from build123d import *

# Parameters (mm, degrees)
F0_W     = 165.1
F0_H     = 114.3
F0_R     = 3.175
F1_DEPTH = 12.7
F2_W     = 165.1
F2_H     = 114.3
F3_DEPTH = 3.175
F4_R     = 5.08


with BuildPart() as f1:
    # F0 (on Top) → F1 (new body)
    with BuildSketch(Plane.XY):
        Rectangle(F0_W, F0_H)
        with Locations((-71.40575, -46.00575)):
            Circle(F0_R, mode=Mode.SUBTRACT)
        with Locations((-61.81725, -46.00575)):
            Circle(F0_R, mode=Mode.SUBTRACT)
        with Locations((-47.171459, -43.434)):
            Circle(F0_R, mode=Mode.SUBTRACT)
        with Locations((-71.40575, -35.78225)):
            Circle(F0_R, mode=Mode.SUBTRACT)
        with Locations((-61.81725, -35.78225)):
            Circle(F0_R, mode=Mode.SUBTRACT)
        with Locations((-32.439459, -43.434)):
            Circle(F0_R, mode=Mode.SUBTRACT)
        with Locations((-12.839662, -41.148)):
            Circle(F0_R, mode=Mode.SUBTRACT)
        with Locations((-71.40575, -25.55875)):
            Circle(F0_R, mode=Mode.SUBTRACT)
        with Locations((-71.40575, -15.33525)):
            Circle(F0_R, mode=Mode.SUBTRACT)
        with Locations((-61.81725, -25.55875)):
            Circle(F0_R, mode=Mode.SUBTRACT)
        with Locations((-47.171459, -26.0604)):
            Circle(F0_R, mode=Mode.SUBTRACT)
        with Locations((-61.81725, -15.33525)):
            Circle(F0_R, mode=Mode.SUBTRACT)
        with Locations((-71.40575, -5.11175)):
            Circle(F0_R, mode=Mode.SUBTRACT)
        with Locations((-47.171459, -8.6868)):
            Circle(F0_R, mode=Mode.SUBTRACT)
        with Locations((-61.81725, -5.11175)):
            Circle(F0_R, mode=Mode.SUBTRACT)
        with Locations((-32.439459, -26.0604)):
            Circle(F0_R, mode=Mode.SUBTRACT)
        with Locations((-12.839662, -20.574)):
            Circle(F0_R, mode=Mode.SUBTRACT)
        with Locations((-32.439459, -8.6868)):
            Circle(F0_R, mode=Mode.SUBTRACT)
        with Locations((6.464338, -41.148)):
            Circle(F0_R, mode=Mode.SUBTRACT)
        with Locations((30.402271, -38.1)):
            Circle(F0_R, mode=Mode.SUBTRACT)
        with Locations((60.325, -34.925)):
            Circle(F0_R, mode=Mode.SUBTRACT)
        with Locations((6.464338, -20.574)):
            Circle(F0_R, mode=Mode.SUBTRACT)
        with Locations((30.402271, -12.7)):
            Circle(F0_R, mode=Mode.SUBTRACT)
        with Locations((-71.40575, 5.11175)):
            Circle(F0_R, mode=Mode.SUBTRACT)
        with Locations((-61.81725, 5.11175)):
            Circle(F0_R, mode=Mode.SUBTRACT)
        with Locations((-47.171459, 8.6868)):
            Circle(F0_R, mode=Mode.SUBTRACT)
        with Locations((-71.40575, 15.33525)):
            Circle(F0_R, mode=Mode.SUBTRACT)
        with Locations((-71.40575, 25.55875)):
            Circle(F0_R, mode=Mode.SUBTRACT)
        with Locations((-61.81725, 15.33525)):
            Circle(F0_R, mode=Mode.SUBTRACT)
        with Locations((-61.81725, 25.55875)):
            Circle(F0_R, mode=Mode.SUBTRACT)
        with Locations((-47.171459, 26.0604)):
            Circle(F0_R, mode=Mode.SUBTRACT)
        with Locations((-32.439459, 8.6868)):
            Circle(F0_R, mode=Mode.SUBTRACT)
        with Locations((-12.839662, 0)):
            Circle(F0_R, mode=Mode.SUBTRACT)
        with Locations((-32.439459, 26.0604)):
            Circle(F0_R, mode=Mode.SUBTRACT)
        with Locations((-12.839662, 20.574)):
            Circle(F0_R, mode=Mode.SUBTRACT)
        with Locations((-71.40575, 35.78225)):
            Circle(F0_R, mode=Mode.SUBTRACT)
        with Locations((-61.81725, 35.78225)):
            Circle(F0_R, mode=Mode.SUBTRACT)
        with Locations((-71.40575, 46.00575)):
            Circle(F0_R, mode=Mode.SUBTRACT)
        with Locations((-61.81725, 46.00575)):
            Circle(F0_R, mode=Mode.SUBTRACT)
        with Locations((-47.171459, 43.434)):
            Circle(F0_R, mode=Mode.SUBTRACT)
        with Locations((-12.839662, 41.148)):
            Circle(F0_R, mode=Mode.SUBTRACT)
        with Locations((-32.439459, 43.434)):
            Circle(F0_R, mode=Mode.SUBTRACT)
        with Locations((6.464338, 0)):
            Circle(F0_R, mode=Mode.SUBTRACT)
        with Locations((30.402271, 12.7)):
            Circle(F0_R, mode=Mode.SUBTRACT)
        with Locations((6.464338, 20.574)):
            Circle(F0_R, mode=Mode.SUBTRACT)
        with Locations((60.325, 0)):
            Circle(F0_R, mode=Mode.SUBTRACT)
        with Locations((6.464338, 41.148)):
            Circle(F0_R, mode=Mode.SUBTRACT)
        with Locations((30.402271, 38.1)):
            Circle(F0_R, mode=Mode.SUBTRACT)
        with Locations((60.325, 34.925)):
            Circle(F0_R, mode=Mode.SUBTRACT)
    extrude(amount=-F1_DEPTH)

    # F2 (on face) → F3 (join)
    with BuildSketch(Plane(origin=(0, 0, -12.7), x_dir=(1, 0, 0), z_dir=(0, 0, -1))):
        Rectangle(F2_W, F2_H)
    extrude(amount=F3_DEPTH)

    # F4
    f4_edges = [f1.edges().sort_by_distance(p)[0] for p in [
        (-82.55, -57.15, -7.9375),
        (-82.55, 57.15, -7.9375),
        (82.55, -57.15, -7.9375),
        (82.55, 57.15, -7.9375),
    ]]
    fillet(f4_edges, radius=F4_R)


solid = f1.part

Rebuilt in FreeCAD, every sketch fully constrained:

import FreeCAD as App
import Part
import Sketcher
Q = App.Units.Quantity


def edges_at(feature, points):
    """Names of the edges that pass closest to the given points."""
    edges = feature.Shape.Edges
    near = lambda p: min(range(len(edges)), key=lambda i: edges[i].distToShape(Part.Vertex(*p))[0])
    return sorted({f"Edge{near(p) + 1}" for p in points})


def add_polygon(sketch, points):
    """Adds a closed chain of lines whose ends are joined by coincident constraints."""
    first, n = sketch.GeometryCount, len(points)
    for a, b in zip(points, points[1:] + points[:1]):
        sketch.addGeometry(Part.LineSegment(App.Vector(*a, 0), App.Vector(*b, 0)), False)
    for i in range(n):
        sketch.addConstraint(Sketcher.Constraint("Coincident", first + i, 2, first + (i + 1) % n, 1))

doc = App.newDocument("Part")
body = doc.addObject("PartDesign::Body", "Body")

sketch1 = body.newObject("Sketcher::SketchObject", "Sketch")
sketch1.AttachmentSupport = (doc.getObject("XY_Plane"), [""])
sketch1.MapMode = "FlatFace"
add_polygon(sketch1, [(-82.5, 57.1), (-82.5, -57.1), (82.5, -57.1), (82.5, 57.1)])
sketch1.addGeometry(Part.Circle(App.Vector(-71.4, -46, 0), App.Vector(0, 0, 1), 3.2), False)
sketch1.addGeometry(Part.Circle(App.Vector(-61.8, -46, 0), App.Vector(0, 0, 1), 3.2), False)
sketch1.addGeometry(Part.Circle(App.Vector(-47.2, -43.4, 0), App.Vector(0, 0, 1), 3.2), False)
sketch1.addGeometry(Part.Circle(App.Vector(-71.4, -35.8, 0), App.Vector(0, 0, 1), 3.2), False)
sketch1.addGeometry(Part.Circle(App.Vector(-61.8, -35.8, 0), App.Vector(0, 0, 1), 3.2), False)
sketch1.addGeometry(Part.Circle(App.Vector(-71.4, -25.6, 0), App.Vector(0, 0, 1), 3.2), False)
sketch1.addGeometry(Part.Circle(App.Vector(-61.8, -25.6, 0), App.Vector(0, 0, 1), 3.2), False)
sketch1.addGeometry(Part.Circle(App.Vector(-47.2, -26.1, 0), App.Vector(0, 0, 1), 3.2), False)
sketch1.addGeometry(Part.Circle(App.Vector(-32.4, -43.4, 0), App.Vector(0, 0, 1), 3.2), False)
sketch1.addGeometry(Part.Circle(App.Vector(-12.8, -41.1, 0), App.Vector(0, 0, 1), 3.2), False)
sketch1.addGeometry(Part.Circle(App.Vector(-32.4, -26.1, 0), App.Vector(0, 0, 1), 3.2), False)
sketch1.addGeometry(Part.Circle(App.Vector(-71.4, -15.3, 0), App.Vector(0, 0, 1), 3.2), False)
sketch1.addGeometry(Part.Circle(App.Vector(-61.8, -15.3, 0), App.Vector(0, 0, 1), 3.2), False)
sketch1.addGeometry(Part.Circle(App.Vector(-71.4, -5.1, 0), App.Vector(0, 0, 1), 3.2), False)
sketch1.addGeometry(Part.Circle(App.Vector(-61.8, -5.1, 0), App.Vector(0, 0, 1), 3.2), False)
sketch1.addGeometry(Part.Circle(App.Vector(-47.2, -8.7, 0), App.Vector(0, 0, 1), 3.2), False)
sketch1.addGeometry(Part.Circle(App.Vector(-12.8, -20.6, 0), App.Vector(0, 0, 1), 3.2), False)
sketch1.addGeometry(Part.Circle(App.Vector(-32.4, -8.7, 0), App.Vector(0, 0, 1), 3.2), False)
sketch1.addGeometry(Part.Circle(App.Vector(6.5, -41.1, 0), App.Vector(0, 0, 1), 3.2), False)
sketch1.addGeometry(Part.Circle(App.Vector(30.4, -38.1, 0), App.Vector(0, 0, 1), 3.2), False)
sketch1.addGeometry(Part.Circle(App.Vector(60.3, -34.9, 0), App.Vector(0, 0, 1), 3.2), False)
sketch1.addGeometry(Part.Circle(App.Vector(6.5, -20.6, 0), App.Vector(0, 0, 1), 3.2), False)
sketch1.addGeometry(Part.Circle(App.Vector(30.4, -12.7, 0), App.Vector(0, 0, 1), 3.2), False)
sketch1.addGeometry(Part.Circle(App.Vector(-71.4, 5.1, 0), App.Vector(0, 0, 1), 3.2), False)
sketch1.addGeometry(Part.Circle(App.Vector(-61.8, 5.1, 0), App.Vector(0, 0, 1), 3.2), False)
sketch1.addGeometry(Part.Circle(App.Vector(-47.2, 8.7, 0), App.Vector(0, 0, 1), 3.2), False)
sketch1.addGeometry(Part.Circle(App.Vector(-71.4, 15.3, 0), App.Vector(0, 0, 1), 3.2), False)
sketch1.addGeometry(Part.Circle(App.Vector(-61.8, 15.3, 0), App.Vector(0, 0, 1), 3.2), False)
sketch1.addGeometry(Part.Circle(App.Vector(-32.4, 8.7, 0), App.Vector(0, 0, 1), 3.2), False)
sketch1.addGeometry(Part.Circle(App.Vector(-12.8, 0, 0), App.Vector(0, 0, 1), 3.2), False)
sketch1.addGeometry(Part.Circle(App.Vector(-12.8, 20.6, 0), App.Vector(0, 0, 1), 3.2), False)
sketch1.addGeometry(Part.Circle(App.Vector(-71.4, 25.6, 0), App.Vector(0, 0, 1), 3.2), False)
sketch1.addGeometry(Part.Circle(App.Vector(-61.8, 25.6, 0), App.Vector(0, 0, 1), 3.2), False)
sketch1.addGeometry(Part.Circle(App.Vector(-71.4, 35.8, 0), App.Vector(0, 0, 1), 3.2), False)
sketch1.addGeometry(Part.Circle(App.Vector(-61.8, 35.8, 0), App.Vector(0, 0, 1), 3.2), False)
sketch1.addGeometry(Part.Circle(App.Vector(-47.2, 26.1, 0), App.Vector(0, 0, 1), 3.2), False)
sketch1.addGeometry(Part.Circle(App.Vector(-71.4, 46, 0), App.Vector(0, 0, 1), 3.2), False)
sketch1.addGeometry(Part.Circle(App.Vector(-61.8, 46, 0), App.Vector(0, 0, 1), 3.2), False)
sketch1.addGeometry(Part.Circle(App.Vector(-47.2, 43.4, 0), App.Vector(0, 0, 1), 3.2), False)
sketch1.addGeometry(Part.Circle(App.Vector(-32.4, 26.1, 0), App.Vector(0, 0, 1), 3.2), False)
sketch1.addGeometry(Part.Circle(App.Vector(-32.4, 43.4, 0), App.Vector(0, 0, 1), 3.2), False)
sketch1.addGeometry(Part.Circle(App.Vector(-12.8, 41.1, 0), App.Vector(0, 0, 1), 3.2), False)
sketch1.addGeometry(Part.Circle(App.Vector(6.5, 0, 0), App.Vector(0, 0, 1), 3.2), False)
sketch1.addGeometry(Part.Circle(App.Vector(6.5, 20.6, 0), App.Vector(0, 0, 1), 3.2), False)
sketch1.addGeometry(Part.Circle(App.Vector(60.3, 0, 0), App.Vector(0, 0, 1), 3.2), False)
sketch1.addGeometry(Part.Circle(App.Vector(30.4, 12.7, 0), App.Vector(0, 0, 1), 3.2), False)
sketch1.addGeometry(Part.Circle(App.Vector(6.5, 41.1, 0), App.Vector(0, 0, 1), 3.2), False)
sketch1.addGeometry(Part.Circle(App.Vector(60.3, 34.9, 0), App.Vector(0, 0, 1), 3.2), False)
sketch1.addGeometry(Part.Circle(App.Vector(30.4, 38.1, 0), App.Vector(0, 0, 1), 3.2), False)
sketch1.addConstraint([
    Sketcher.Constraint("Vertical", 0),
    Sketcher.Constraint("Horizontal", 1),
    Sketcher.Constraint("Vertical", 2),
    Sketcher.Constraint("Horizontal", 3),
    Sketcher.Constraint("Equal", 4, 5),
    Sketcher.Constraint("Equal", 5, 6),
    Sketcher.Constraint("Equal", 6, 7),
    Sketcher.Constraint("Equal", 7, 8),
    Sketcher.Constraint("Equal", 8, 9),
    Sketcher.Constraint("Equal", 9, 10),
    Sketcher.Constraint("Equal", 10, 11),
    Sketcher.Constraint("Equal", 11, 12),
    Sketcher.Constraint("Equal", 12, 13),
    Sketcher.Constraint("Equal", 13, 14),
    Sketcher.Constraint("Equal", 14, 15),
    Sketcher.Constraint("Equal", 15, 16),
    Sketcher.Constraint("Equal", 16, 17),
    Sketcher.Constraint("Equal", 17, 18),
    Sketcher.Constraint("Equal", 18, 19),
    Sketcher.Constraint("Equal", 19, 20),
    Sketcher.Constraint("Equal", 20, 21),
    Sketcher.Constraint("Equal", 21, 22),
    Sketcher.Constraint("Equal", 22, 23),
    Sketcher.Constraint("Equal", 23, 24),
    Sketcher.Constraint("Equal", 24, 25),
    Sketcher.Constraint("Equal", 25, 26),
    Sketcher.Constraint("Equal", 26, 27),
    Sketcher.Constraint("Equal", 27, 28),
    Sketcher.Constraint("Equal", 28, 29),
    Sketcher.Constraint("Equal", 29, 30),
    Sketcher.Constraint("Equal", 30, 31),
    Sketcher.Constraint("Equal", 31, 32),
    Sketcher.Constraint("Equal", 32, 33),
    Sketcher.Constraint("Equal", 33, 34),
    Sketcher.Constraint("Equal", 34, 35),
    Sketcher.Constraint("Equal", 35, 36),
    Sketcher.Constraint("Equal", 36, 37),
    Sketcher.Constraint("Equal", 37, 38),
    Sketcher.Constraint("Equal", 38, 39),
    Sketcher.Constraint("Equal", 39, 40),
    Sketcher.Constraint("Equal", 40, 41),
    Sketcher.Constraint("Equal", 41, 42),
    Sketcher.Constraint("Equal", 42, 43),
    Sketcher.Constraint("Equal", 43, 44),
    Sketcher.Constraint("Equal", 44, 45),
    Sketcher.Constraint("Equal", 45, 46),
    Sketcher.Constraint("Equal", 46, 47),
    Sketcher.Constraint("Equal", 47, 48),
    Sketcher.Constraint("Equal", 48, 49),
    Sketcher.Constraint("Equal", 49, 50),
    Sketcher.Constraint("Equal", 50, 51),
    Sketcher.Constraint("Equal", 51, 52),
    Sketcher.Constraint("Symmetric", 0, 2, 2, 2, -1, 1),
    Sketcher.Constraint("Symmetric", 17, 3, 27, 3, -1),
    Sketcher.Constraint("Symmetric", 18, 3, 28, 3, -1),
    Sketcher.Constraint("Symmetric", 19, 3, 29, 3, -1),
    Sketcher.Constraint("Symmetric", 15, 3, 30, 3, -1),
    Sketcher.Constraint("Symmetric", 16, 3, 31, 3, -1),
    Sketcher.Constraint("Symmetric", 21, 3, 32, 3, -1),
    Sketcher.Constraint("Symmetric", 20, 3, 34, 3, -1),
    Sketcher.Constraint("Symmetric", 9, 3, 35, 3, -1),
    Sketcher.Constraint("Symmetric", 10, 3, 36, 3, -1),
    Sketcher.Constraint("Symmetric", 7, 3, 37, 3, -1),
    Sketcher.Constraint("Symmetric", 8, 3, 38, 3, -1),
    Sketcher.Constraint("Symmetric", 11, 3, 39, 3, -1),
    Sketcher.Constraint("Symmetric", 4, 3, 40, 3, -1),
    Sketcher.Constraint("Symmetric", 5, 3, 41, 3, -1),
    Sketcher.Constraint("Symmetric", 6, 3, 42, 3, -1),
    Sketcher.Constraint("Symmetric", 14, 3, 43, 3, -1),
    Sketcher.Constraint("Symmetric", 12, 3, 44, 3, -1),
    Sketcher.Constraint("Symmetric", 13, 3, 45, 3, -1),
    Sketcher.Constraint("Symmetric", 25, 3, 47, 3, -1),
    Sketcher.Constraint("Symmetric", 26, 3, 49, 3, -1),
    Sketcher.Constraint("Symmetric", 22, 3, 50, 3, -1),
    Sketcher.Constraint("Symmetric", 24, 3, 51, 3, -1),
    Sketcher.Constraint("Symmetric", 23, 3, 52, 3, -1),
    Sketcher.Constraint("PointOnObject", 33, 3, -1),
    Sketcher.Constraint("PointOnObject", 46, 3, -1),
    Sketcher.Constraint("PointOnObject", 48, 3, -1),
    Sketcher.Constraint("Horizontal", 4, 3, 5, 3),
    Sketcher.Constraint("Horizontal", 7, 3, 8, 3),
    Sketcher.Constraint("Horizontal", 9, 3, 10, 3),
    Sketcher.Constraint("Horizontal", 6, 3, 12, 3),
    Sketcher.Constraint("Horizontal", 11, 3, 14, 3),
    Sketcher.Constraint("Horizontal", 15, 3, 16, 3),
    Sketcher.Constraint("Horizontal", 17, 3, 18, 3),
    Sketcher.Constraint("Horizontal", 19, 3, 21, 3),
    Sketcher.Constraint("Horizontal", 13, 3, 22, 3),
    Sketcher.Constraint("Horizontal", 20, 3, 25, 3),
    Sketcher.Constraint("Vertical", 4, 3, 7, 3),
    Sketcher.Constraint("Vertical", 5, 3, 8, 3),
    Sketcher.Constraint("Vertical", 7, 3, 9, 3),
    Sketcher.Constraint("Vertical", 8, 3, 10, 3),
    Sketcher.Constraint("Vertical", 6, 3, 11, 3),
    Sketcher.Constraint("Vertical", 12, 3, 14, 3),
    Sketcher.Constraint("Vertical", 9, 3, 15, 3),
    Sketcher.Constraint("Vertical", 10, 3, 16, 3),
    Sketcher.Constraint("Vertical", 15, 3, 17, 3),
    Sketcher.Constraint("Vertical", 16, 3, 18, 3),
    Sketcher.Constraint("Vertical", 11, 3, 19, 3),
    Sketcher.Constraint("Vertical", 13, 3, 20, 3),
    Sketcher.Constraint("Vertical", 14, 3, 21, 3),
    Sketcher.Constraint("Vertical", 22, 3, 25, 3),
    Sketcher.Constraint("Vertical", 23, 3, 26, 3),
    Sketcher.Constraint("Vertical", 20, 3, 33, 3),
    Sketcher.Constraint("Vertical", 25, 3, 46, 3),
    Sketcher.Constraint("Vertical", 24, 3, 48, 3),
    Sketcher.Constraint("Diameter", 4, Q("0.25 in")),
    Sketcher.Constraint("DistanceX", 1, 1, 1, 2, Q("6.5 in")),
    Sketcher.Constraint("DistanceY", 0, 2, 0, 1, Q("4.5 in")),
    Sketcher.Constraint("DistanceY", 23, 3, 26, 3, Q("1 in")),
    Sketcher.Constraint("DistanceY", 26, 3, 49, 3, Q("1 in")),
    Sketcher.Constraint("DistanceY", 12, 3, 20, 3, Q("0.9 in")),
    Sketcher.Constraint("DistanceY", 6, 3, -1, 1, Q("1.71 in")),
    Sketcher.Constraint("DistanceY", 13, 3, -1, 1, Q("1.62 in")),
    Sketcher.Constraint("DistanceX", 6, 3, 12, 3, Q("0.58 in")),
    Sketcher.Constraint("DistanceX", 13, 3, 22, 3, Q("0.76 in")),
    Sketcher.Constraint("DistanceY", 11, 3, -1, 1, Q("1.026 in")),
    Sketcher.Constraint("DistanceY", 19, 3, -1, 1, Q("0.342 in")),
    Sketcher.Constraint("DistanceX", -1, 1, 24, 3, Q("2.375 in")),
    Sketcher.Constraint("DistanceY", 24, 3, -1, 1, Q("1.375 in")),
    Sketcher.Constraint("DistanceY", 4, 3, 9, 3, Q("0.805 in")),
    Sketcher.Constraint("DistanceY", 7, 3, 15, 3, Q("0.805 in")),
    Sketcher.Constraint("DistanceY", 9, 3, 17, 3, Q("0.805 in")),
    Sketcher.Constraint("DistanceY", 15, 3, 27, 3, Q("0.805 in")),
    Sketcher.Constraint("DistanceX", 4, 3, 5, 3, Q("0.3775 in")),
    Sketcher.Constraint("DistanceY", 4, 3, 7, 3, Q("0.4025 in")),
    Sketcher.Constraint("DistanceX", 4, 3, -1, 1, 71.40575),
    Sketcher.Constraint("DistanceX", 6, 3, -1, 1, 47.171459),
    Sketcher.Constraint("DistanceX", -1, 1, 23, 3, 30.402271),
    Sketcher.Constraint("DistanceX", 22, 3, 1, 2, 76.085662),
])
pad1 = body.newObject("PartDesign::Pad", "Pad")
pad1.Profile = sketch1
pad1.Length = Q("0.5 in")
pad1.Reversed = True

sketch2 = body.newObject("Sketcher::SketchObject", "Sketch001")
sketch2.AttachmentSupport = (doc.getObject("XY_Plane"), [""])
sketch2.MapMode = "FlatFace"
sketch2.AttachmentOffset = App.Placement(App.Vector(0, 0, -0.5 * 25.4), App.Rotation())
add_polygon(sketch2, [(-83, -57), (-83, 57), (83, 57), (83, -57)])
sketch2.addConstraint([
    Sketcher.Constraint("Vertical", 0),
    Sketcher.Constraint("Horizontal", 1),
    Sketcher.Constraint("Vertical", 2),
    Sketcher.Constraint("Horizontal", 3),
    Sketcher.Constraint("Symmetric", 0, 2, 2, 2, -1, 1),
    Sketcher.Constraint("DistanceX", 1, 1, 1, 2, Q("6.5 in")),
    Sketcher.Constraint("DistanceY", 0, 1, 0, 2, Q("4.5 in")),
])
pad2 = body.newObject("PartDesign::Pad", "Pad001")
pad2.Profile = sketch2
pad2.Length = Q("0.125 in")
pad2.Reversed = True
doc.recompute()

fillet = body.newObject("PartDesign::Fillet", "Fillet")
fillet.Base = (pad2, edges_at(pad2, [
    (-82.55, -57.15, -7.938),
    (-82.55, 57.15, -7.938),
    (82.55, -57.15, -7.938),
    (82.55, 57.15, -7.938),
]))
fillet.Radius = Q("0.2 in")

doc.recompute()
